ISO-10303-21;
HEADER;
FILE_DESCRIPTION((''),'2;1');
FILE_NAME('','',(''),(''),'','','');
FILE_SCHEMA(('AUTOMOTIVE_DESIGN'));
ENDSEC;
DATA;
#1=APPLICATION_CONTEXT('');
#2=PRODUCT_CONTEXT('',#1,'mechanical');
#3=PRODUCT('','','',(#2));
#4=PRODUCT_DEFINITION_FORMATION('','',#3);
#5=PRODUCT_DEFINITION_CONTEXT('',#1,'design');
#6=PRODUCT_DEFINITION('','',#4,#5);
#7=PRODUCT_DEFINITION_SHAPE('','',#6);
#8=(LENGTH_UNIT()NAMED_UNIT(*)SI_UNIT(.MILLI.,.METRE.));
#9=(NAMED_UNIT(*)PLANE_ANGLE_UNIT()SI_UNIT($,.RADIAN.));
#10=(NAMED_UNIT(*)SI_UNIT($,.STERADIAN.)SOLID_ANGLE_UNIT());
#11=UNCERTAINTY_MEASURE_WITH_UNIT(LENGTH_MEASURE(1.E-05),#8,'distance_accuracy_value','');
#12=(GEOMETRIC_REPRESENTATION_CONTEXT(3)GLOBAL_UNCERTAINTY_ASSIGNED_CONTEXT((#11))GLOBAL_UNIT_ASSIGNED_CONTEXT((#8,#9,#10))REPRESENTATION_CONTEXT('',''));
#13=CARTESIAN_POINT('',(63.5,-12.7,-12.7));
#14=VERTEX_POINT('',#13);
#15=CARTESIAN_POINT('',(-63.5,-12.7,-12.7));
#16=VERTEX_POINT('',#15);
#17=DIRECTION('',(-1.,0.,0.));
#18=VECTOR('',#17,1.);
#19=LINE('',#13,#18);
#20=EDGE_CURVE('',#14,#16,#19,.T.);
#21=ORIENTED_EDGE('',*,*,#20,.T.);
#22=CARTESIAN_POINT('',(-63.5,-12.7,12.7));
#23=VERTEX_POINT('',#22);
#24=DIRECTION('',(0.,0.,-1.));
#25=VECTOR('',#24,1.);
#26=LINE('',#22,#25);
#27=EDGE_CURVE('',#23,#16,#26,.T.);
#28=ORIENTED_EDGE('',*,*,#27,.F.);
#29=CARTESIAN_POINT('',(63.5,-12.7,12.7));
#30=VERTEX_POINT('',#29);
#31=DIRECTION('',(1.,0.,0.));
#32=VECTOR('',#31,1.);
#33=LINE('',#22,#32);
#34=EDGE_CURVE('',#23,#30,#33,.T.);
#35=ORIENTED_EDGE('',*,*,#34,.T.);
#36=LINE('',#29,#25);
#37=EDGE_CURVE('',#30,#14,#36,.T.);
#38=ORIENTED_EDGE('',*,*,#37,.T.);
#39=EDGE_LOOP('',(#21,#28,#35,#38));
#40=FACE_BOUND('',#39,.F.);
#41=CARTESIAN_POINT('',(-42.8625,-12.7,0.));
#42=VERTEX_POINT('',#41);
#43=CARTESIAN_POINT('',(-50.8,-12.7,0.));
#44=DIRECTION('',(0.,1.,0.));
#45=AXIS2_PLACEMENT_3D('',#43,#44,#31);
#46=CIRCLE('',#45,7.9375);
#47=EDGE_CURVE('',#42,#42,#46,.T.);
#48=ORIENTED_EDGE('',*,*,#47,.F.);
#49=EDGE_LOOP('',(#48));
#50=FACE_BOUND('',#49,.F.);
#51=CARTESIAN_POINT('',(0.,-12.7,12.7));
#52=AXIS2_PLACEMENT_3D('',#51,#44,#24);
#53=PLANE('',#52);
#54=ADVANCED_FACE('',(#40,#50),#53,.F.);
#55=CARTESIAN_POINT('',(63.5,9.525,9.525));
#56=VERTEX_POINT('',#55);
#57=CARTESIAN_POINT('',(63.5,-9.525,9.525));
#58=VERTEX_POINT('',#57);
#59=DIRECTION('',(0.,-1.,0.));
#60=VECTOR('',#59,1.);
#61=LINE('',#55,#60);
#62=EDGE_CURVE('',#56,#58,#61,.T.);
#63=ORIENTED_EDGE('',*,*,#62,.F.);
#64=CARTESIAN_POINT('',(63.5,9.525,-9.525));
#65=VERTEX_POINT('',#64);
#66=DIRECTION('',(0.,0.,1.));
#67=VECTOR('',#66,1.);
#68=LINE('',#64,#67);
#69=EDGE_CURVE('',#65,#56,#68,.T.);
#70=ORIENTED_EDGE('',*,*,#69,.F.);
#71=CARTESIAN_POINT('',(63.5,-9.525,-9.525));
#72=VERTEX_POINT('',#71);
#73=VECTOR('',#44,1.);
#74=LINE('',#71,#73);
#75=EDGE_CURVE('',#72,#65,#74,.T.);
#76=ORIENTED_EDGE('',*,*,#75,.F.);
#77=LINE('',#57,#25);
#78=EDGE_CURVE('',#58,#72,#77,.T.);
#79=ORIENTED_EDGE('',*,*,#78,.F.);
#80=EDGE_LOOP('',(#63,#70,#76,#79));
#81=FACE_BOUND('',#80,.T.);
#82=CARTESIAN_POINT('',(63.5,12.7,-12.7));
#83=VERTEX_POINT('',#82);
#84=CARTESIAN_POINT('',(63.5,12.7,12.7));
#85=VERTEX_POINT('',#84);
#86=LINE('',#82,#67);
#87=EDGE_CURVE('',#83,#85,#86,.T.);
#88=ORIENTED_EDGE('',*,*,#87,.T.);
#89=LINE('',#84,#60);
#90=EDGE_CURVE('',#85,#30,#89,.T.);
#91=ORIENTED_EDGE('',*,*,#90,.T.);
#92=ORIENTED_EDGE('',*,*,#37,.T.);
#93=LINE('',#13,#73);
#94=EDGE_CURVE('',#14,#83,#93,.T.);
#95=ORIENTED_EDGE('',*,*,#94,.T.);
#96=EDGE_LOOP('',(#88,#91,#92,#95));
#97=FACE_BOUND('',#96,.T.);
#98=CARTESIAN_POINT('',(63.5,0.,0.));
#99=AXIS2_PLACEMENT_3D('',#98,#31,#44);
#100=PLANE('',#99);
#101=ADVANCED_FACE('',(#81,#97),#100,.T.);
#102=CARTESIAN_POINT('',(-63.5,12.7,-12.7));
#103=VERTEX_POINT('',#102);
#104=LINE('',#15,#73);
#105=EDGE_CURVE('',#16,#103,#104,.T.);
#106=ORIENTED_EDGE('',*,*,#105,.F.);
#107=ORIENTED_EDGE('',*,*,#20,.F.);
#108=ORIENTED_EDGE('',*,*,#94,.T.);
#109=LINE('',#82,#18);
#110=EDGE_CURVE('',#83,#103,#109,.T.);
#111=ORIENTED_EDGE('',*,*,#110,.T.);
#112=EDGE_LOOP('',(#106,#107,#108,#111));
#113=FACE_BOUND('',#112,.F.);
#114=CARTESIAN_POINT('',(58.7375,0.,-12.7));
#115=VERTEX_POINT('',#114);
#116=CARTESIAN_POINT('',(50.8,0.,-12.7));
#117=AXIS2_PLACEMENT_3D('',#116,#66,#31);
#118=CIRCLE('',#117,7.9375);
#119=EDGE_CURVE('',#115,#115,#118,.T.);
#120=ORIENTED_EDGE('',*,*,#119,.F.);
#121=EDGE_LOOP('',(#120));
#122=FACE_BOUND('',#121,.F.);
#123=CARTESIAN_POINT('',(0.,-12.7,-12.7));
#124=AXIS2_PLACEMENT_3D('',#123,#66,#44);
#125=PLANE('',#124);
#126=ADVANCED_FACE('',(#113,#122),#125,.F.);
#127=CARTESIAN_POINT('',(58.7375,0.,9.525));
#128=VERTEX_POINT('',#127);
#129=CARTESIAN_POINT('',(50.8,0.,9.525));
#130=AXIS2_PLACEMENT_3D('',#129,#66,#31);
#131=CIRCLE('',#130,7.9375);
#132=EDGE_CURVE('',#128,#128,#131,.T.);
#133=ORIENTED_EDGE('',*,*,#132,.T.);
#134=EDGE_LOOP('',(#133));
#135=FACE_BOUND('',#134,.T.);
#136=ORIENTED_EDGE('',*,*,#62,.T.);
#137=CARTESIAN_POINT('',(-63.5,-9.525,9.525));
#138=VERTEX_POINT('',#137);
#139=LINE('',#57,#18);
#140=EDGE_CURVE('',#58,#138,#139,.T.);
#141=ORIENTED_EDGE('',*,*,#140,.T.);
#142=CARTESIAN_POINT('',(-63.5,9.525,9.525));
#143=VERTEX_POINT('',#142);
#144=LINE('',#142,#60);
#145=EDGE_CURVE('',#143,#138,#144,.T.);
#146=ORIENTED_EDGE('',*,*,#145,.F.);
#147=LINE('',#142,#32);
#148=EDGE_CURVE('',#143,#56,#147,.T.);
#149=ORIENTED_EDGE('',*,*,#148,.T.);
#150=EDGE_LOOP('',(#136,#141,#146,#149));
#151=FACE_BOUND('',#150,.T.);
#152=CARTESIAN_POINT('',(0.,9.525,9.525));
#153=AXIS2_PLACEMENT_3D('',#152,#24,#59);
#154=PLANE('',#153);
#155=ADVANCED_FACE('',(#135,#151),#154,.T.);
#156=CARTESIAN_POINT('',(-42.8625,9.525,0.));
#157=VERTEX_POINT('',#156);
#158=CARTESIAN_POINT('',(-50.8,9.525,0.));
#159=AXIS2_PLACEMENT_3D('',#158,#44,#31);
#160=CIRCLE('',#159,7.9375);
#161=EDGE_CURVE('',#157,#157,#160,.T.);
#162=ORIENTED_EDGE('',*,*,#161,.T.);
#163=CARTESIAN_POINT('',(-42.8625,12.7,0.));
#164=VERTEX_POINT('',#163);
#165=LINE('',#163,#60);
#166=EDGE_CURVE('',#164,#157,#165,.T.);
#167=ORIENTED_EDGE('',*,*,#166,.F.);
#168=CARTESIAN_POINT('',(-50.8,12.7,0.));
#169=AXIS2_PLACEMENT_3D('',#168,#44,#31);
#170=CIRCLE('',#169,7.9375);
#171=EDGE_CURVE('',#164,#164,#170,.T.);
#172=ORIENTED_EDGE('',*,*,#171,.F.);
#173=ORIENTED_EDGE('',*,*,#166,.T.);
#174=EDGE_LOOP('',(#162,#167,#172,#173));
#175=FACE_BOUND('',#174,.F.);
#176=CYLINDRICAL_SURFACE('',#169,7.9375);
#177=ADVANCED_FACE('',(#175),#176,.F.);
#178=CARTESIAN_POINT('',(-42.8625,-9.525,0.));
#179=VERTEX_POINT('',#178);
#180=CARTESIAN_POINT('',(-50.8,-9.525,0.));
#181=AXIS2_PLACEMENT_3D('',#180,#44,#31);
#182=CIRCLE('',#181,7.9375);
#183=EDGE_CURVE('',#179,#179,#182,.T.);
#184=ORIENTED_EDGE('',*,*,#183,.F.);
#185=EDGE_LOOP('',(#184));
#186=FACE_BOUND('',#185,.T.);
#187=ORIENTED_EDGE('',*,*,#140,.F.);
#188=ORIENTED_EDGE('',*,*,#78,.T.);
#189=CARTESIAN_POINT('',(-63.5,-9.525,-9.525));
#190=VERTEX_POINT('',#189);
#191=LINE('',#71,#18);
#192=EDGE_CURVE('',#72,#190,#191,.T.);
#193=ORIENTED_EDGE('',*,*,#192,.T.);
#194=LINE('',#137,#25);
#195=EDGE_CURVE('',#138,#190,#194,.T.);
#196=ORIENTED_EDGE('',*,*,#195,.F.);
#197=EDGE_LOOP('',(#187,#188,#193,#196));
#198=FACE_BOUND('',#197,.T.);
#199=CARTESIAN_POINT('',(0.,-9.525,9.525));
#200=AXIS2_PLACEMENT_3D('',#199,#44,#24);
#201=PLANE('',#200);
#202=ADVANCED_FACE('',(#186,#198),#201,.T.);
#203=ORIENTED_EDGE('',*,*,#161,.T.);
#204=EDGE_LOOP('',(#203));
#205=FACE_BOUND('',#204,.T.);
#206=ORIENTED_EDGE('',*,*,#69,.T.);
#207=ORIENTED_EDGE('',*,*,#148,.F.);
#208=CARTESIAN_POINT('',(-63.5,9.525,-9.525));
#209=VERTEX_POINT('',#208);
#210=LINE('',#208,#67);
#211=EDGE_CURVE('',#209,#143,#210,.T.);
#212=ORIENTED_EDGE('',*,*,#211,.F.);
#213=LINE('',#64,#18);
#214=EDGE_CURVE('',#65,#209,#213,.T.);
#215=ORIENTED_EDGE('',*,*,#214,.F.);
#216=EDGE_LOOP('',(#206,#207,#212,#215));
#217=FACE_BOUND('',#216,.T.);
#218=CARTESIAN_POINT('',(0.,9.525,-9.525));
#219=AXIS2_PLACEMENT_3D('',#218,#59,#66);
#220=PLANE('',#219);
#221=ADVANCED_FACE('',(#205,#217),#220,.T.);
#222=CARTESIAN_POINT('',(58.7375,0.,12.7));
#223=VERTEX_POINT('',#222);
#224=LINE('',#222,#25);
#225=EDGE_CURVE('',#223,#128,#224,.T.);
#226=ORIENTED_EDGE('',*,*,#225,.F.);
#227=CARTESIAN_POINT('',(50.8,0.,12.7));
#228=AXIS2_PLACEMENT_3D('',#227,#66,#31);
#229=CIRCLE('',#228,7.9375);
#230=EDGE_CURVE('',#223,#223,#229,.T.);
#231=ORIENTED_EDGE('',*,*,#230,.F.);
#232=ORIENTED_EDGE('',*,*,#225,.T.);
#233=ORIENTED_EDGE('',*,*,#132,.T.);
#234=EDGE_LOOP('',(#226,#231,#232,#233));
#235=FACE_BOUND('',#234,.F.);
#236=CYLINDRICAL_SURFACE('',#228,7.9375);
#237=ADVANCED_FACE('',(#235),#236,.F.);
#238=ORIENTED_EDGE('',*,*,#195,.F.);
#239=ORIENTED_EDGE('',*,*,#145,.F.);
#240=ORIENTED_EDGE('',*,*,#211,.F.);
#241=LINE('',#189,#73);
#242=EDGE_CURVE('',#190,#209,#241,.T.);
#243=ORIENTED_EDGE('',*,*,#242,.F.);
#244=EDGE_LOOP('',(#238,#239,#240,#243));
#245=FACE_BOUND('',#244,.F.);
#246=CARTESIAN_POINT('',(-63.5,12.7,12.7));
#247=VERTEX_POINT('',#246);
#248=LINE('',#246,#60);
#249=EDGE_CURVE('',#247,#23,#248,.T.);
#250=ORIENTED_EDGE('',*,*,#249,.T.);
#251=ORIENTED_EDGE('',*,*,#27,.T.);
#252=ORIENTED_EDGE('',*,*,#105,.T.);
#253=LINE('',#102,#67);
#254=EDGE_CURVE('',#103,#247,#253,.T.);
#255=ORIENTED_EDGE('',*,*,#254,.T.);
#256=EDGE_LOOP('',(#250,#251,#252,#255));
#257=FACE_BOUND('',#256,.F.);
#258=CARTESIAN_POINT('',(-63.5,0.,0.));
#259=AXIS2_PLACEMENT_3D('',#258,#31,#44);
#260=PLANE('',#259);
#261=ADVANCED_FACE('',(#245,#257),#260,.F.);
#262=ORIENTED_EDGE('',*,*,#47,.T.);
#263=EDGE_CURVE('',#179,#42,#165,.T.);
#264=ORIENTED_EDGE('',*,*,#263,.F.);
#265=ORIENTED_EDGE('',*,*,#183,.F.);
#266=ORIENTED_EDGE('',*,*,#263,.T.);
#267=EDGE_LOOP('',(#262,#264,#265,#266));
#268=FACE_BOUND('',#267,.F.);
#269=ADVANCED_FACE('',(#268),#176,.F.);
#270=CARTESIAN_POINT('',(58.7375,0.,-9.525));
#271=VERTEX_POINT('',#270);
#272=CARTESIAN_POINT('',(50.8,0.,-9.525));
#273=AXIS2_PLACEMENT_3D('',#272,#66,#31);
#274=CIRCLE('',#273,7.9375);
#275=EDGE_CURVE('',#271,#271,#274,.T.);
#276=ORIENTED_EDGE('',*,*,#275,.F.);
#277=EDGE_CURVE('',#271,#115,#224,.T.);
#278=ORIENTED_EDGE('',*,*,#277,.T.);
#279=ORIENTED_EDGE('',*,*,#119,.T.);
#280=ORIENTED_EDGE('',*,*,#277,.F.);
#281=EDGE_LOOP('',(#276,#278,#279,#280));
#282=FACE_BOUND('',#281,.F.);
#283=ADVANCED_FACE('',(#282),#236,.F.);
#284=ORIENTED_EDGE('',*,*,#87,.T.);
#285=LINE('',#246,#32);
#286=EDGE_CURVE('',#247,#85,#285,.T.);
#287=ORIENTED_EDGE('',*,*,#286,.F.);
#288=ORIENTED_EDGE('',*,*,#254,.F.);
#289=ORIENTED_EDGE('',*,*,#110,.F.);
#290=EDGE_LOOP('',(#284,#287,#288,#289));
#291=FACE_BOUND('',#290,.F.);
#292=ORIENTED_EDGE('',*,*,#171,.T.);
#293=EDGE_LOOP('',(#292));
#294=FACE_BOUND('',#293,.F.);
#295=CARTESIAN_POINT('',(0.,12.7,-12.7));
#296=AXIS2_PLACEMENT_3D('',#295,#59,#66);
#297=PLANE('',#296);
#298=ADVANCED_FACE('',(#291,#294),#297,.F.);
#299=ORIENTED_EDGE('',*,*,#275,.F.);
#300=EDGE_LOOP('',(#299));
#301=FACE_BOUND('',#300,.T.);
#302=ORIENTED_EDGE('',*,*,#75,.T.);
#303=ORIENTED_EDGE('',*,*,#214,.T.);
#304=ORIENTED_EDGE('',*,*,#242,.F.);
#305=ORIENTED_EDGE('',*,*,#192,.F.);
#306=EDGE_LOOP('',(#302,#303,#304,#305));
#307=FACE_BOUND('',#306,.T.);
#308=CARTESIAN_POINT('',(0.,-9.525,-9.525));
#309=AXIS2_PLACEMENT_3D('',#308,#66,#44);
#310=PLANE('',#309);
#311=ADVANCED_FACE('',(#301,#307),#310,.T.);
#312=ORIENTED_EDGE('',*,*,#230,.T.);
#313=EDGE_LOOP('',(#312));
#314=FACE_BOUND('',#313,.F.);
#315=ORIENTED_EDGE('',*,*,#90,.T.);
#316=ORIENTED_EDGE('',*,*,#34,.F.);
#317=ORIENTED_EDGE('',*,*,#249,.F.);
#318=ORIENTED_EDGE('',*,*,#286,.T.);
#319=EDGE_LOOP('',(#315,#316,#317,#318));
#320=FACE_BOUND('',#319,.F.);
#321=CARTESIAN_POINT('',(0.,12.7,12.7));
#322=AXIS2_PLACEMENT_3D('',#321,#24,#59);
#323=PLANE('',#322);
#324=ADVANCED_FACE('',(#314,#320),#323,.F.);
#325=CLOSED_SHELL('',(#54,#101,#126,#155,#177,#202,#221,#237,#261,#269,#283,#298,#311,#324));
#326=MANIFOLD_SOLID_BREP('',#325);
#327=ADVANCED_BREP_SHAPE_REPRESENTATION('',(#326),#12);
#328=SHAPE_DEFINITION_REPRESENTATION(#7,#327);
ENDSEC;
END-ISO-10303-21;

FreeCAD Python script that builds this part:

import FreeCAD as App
import Part
import Sketcher
from FreeCAD import Vector
Q = App.Units.Quantity

doc = App.newDocument("Part")
params = doc.addObject("Spreadsheet::Sheet", "Params")
for row, (alias, value) in enumerate([
    ("sketch1_width", "1 in"),
    ("pad1_length", "5 in"),
    ("sketch2_diameter", "0.625 in"),
    ("sketch3_diameter", "0.625 in"),
], start=1):
    params.set(f"A{row}", alias)
    params.set(f"B{row}", "=" + value)
    params.setAlias(f"B{row}", alias)

body = doc.addObject("PartDesign::Body", "Body")

sketch1 = doc.addObject("Sketcher::SketchObject", "Sketch")
body.addObject(sketch1)
sketch1.AttachmentSupport = (doc.YZ_Plane, [""])
sketch1.MapMode = "FlatFace"
sketch1.addGeometry(Part.LineSegment(Vector(13, -13, 0), Vector(13, 13, 0)), False)
sketch1.addGeometry(Part.LineSegment(Vector(13, 13, 0), Vector(-13, 13, 0)), False)
sketch1.addGeometry(Part.LineSegment(Vector(-13, 13, 0), Vector(-13, -13, 0)), False)
sketch1.addGeometry(Part.LineSegment(Vector(-13, -13, 0), Vector(13, -13, 0)), False)
sketch1.addGeometry(Part.LineSegment(Vector(-10, 10, 0), Vector(10, 10, 0)), False)
sketch1.addGeometry(Part.LineSegment(Vector(10, 10, 0), Vector(10, -10, 0)), False)
sketch1.addGeometry(Part.LineSegment(Vector(10, -10, 0), Vector(-10, -10, 0)), False)
sketch1.addGeometry(Part.LineSegment(Vector(-10, -10, 0), Vector(-10, 10, 0)), False)
sketch1.addConstraint(Sketcher.Constraint("Coincident", 0, 2, 1, 1))
sketch1.addConstraint(Sketcher.Constraint("Coincident", 1, 2, 2, 1))
sketch1.addConstraint(Sketcher.Constraint("Coincident", 2, 2, 3, 1))
sketch1.addConstraint(Sketcher.Constraint("Coincident", 3, 2, 0, 1))
sketch1.addConstraint(Sketcher.Constraint("Coincident", 4, 2, 5, 1))
sketch1.addConstraint(Sketcher.Constraint("Coincident", 5, 2, 6, 1))
sketch1.addConstraint(Sketcher.Constraint("Coincident", 6, 2, 7, 1))
sketch1.addConstraint(Sketcher.Constraint("Coincident", 7, 2, 4, 1))
sketch1.addConstraint(Sketcher.Constraint("Vertical", 0))
sketch1.addConstraint(Sketcher.Constraint("Horizontal", 1))
sketch1.addConstraint(Sketcher.Constraint("Vertical", 2))
sketch1.addConstraint(Sketcher.Constraint("Horizontal", 3))
sketch1.addConstraint(Sketcher.Constraint("Horizontal", 4))
sketch1.addConstraint(Sketcher.Constraint("Vertical", 5))
sketch1.addConstraint(Sketcher.Constraint("Horizontal", 6))
sketch1.addConstraint(Sketcher.Constraint("Vertical", 7))
sketch1.addConstraint(Sketcher.Constraint("Symmetric", 0, 2, 2, 2, -1, 1))
sketch1.addConstraint(Sketcher.Constraint("Symmetric", 4, 2, 6, 2, -1, 1))
sketch1.addConstraint(Sketcher.Constraint("Equal", 3, 0))
sketch1.addConstraint(Sketcher.Constraint("Equal", 6, 5))
sketch1.addConstraint(Sketcher.Constraint("DistanceX", 1, 2, 1, 1, Q("1 in")))
sketch1.addConstraint(Sketcher.Constraint("DistanceX", 4, 2, 0, 2, Q("0.125 in")))
sketch1.setExpression("Constraints[20]", "Params.sketch1_width")
pad1 = doc.addObject("PartDesign::Pad", "Pad")
body.addObject(pad1)
pad1.Profile = sketch1
pad1.setExpression("Length", "Params.pad1_length")
pad1.Midplane = True

sketch2 = doc.addObject("Sketcher::SketchObject", "Sketch001")
body.addObject(sketch2)
sketch2.AttachmentSupport = (doc.XY_Plane, [""])
sketch2.MapMode = "FlatFace"
sketch2.AttachmentOffset = App.Placement(Vector(0, 0, 0.5 * 25.4), App.Rotation())
sketch2.addGeometry(Part.Circle(Vector(51, 0, 0), Vector(0, 0, 1), 8), False)
sketch2.addConstraint(Sketcher.Constraint("PointOnObject", 0, 3, -1))
sketch2.addConstraint(Sketcher.Constraint("Diameter", 0, Q("0.625 in")))
sketch2.addConstraint(Sketcher.Constraint("DistanceX", -1, 1, 0, 3, Q("2 in")))
sketch2.setExpression("Constraints[1]", "Params.sketch2_diameter")
pocket1 = doc.addObject("PartDesign::Pocket", "Pocket")
body.addObject(pocket1)
pocket1.Profile = sketch2
pocket1.Type = "ThroughAll"

sketch3 = doc.addObject("Sketcher::SketchObject", "Sketch002")
body.addObject(sketch3)
sketch3.AttachmentSupport = (doc.XZ_Plane, [""])
sketch3.MapMode = "FlatFace"
sketch3.AttachmentOffset = App.Placement(Vector(0, 0, -0.5 * 25.4), App.Rotation())
sketch3.addGeometry(Part.Circle(Vector(-51, 0, 0), Vector(0, 0, 1), 8), False)
sketch3.addConstraint(Sketcher.Constraint("PointOnObject", 0, 3, -1))
sketch3.addConstraint(Sketcher.Constraint("Diameter", 0, Q("0.625 in")))
sketch3.addConstraint(Sketcher.Constraint("DistanceX", 0, 3, -1, 1, Q("2 in")))
sketch3.setExpression("Constraints[1]", "Params.sketch3_diameter")
pocket2 = doc.addObject("PartDesign::Pocket", "Pocket001")
body.addObject(pocket2)
pocket2.Profile = sketch3
pocket2.Type = "ThroughAll"
pocket2.Reversed = True

doc.recompute()
